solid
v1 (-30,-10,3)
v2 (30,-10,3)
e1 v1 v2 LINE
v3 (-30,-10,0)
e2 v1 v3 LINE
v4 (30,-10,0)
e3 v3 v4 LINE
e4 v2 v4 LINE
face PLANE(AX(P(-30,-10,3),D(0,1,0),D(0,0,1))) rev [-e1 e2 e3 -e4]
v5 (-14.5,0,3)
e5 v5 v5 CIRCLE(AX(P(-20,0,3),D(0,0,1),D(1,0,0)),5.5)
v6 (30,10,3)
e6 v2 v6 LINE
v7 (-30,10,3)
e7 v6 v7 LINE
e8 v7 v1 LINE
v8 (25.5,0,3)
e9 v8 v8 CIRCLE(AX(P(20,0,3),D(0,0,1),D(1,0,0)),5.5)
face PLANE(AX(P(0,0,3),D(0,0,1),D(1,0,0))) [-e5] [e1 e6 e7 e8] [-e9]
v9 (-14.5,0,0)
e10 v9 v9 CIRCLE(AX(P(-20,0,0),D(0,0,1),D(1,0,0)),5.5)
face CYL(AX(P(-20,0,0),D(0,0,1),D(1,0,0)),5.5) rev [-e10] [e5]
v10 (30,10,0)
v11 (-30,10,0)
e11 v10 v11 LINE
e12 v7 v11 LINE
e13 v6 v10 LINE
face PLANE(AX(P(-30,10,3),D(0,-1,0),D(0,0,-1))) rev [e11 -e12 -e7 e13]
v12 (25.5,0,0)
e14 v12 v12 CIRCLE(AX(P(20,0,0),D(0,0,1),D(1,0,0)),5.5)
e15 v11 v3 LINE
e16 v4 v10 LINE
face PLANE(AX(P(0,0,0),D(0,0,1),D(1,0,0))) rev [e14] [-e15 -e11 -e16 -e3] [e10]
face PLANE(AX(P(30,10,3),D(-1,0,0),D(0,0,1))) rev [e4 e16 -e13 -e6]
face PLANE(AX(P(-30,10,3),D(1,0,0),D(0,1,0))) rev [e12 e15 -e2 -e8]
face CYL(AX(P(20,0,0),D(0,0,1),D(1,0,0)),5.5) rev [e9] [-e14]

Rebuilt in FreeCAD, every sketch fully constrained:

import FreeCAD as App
import Part
import Sketcher
Q = App.Units.Quantity

doc = App.newDocument("Part")
body = doc.addObject("PartDesign::Body", "Body")

# Sketch on XY plane
sketch1 = body.newObject("Sketcher::SketchObject", "Sketch")
sketch1.AttachmentSupport = (doc.getObject("XY_Plane"), [""])
sketch1.MapMode = "FlatFace"
sketch1.addGeometry([
    Part.LineSegment(App.Vector(-30, 10, 0), App.Vector(-30, -10, 0)),
    Part.LineSegment(App.Vector(-30, -10, 0), App.Vector(30, -10, 0)),
    Part.LineSegment(App.Vector(30, -10, 0), App.Vector(30, 10, 0)),
    Part.LineSegment(App.Vector(30, 10, 0), App.Vector(-30, 10, 0)),
], False)
sketch1.addConstraint([
    Sketcher.Constraint("Coincident", 0, 2, 1, 1),
    Sketcher.Constraint("Coincident", 1, 2, 2, 1),
    Sketcher.Constraint("Coincident", 2, 2, 3, 1),
    Sketcher.Constraint("Coincident", 3, 2, 0, 1),
    Sketcher.Constraint("Vertical", 0),
    Sketcher.Constraint("Horizontal", 1),
    Sketcher.Constraint("Vertical", 2),
    Sketcher.Constraint("Horizontal", 3),
    Sketcher.Constraint("Symmetric", 0, 2, 2, 2, -1, 1),
    Sketcher.Constraint("DistanceX", 1, 1, 1, 2, Q("60 mm")),
    Sketcher.Constraint("DistanceY", 0, 2, 0, 1, Q("20 mm")),
])
pad1 = body.newObject("PartDesign::Pad", "Pad")
pad1.Profile = sketch1
pad1.Length = 3

# Sketch on XY plane
sketch2 = body.newObject("Sketcher::SketchObject", "Sketch001")
sketch2.AttachmentSupport = (doc.getObject("XY_Plane"), [""])
sketch2.MapMode = "FlatFace"
sketch2.AttachmentOffset = App.Placement(App.Vector(0, 0, 3), App.Rotation())
sketch2.addGeometry([
    Part.Circle(App.Vector(-20, 0, 0), App.Vector(0, 0, 1), 5.5),
    Part.Circle(App.Vector(20, 0, 0), App.Vector(0, 0, 1), 5.5),
], False)
sketch2.addConstraint([
    Sketcher.Constraint("Equal", 0, 1),
    Sketcher.Constraint("Symmetric", 0, 3, 1, 3, -1, 1),
    Sketcher.Constraint("PointOnObject", 0, 3, -1),
    Sketcher.Constraint("Diameter", 0, Q("11 mm")),
    Sketcher.Constraint("DistanceX", 0, 3, -1, 1, Q("20 mm")),
])
pocket1 = body.newObject("PartDesign::Pocket", "Pocket")
pocket1.Profile = sketch2
pocket1.Length = 3

doc.recompute()
